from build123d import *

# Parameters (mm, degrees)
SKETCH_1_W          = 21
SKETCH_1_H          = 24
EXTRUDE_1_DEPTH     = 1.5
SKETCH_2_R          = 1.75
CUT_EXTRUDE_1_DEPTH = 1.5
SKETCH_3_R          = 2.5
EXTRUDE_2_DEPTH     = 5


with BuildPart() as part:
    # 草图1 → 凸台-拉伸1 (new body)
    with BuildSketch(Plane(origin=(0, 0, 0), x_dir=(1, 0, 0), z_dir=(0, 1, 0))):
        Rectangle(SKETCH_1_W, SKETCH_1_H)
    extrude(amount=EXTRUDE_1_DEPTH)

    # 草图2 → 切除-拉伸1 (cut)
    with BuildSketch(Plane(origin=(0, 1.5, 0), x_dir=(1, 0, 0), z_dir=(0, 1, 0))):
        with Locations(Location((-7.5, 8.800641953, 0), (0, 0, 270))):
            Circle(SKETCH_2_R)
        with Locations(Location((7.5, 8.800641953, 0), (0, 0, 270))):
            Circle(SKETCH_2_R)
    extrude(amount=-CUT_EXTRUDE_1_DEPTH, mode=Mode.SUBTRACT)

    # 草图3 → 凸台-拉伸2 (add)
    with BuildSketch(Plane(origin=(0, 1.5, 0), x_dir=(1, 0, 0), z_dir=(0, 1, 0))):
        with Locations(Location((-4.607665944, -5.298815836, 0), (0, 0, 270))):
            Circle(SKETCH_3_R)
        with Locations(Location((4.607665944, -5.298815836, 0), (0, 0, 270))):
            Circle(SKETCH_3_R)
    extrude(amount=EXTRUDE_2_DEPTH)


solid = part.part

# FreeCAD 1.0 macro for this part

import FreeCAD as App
import Part
import Sketcher

doc = App.newDocument("Part")
body = doc.addObject("PartDesign::Body", "Body")

# Sketch on XZ plane
sketch1 = body.newObject("Sketcher::SketchObject", "Sketch")
sketch1.AttachmentSupport = (doc.getObject("XZ_Plane"), [""])
sketch1.MapMode = "FlatFace"
sketch1.addGeometry(Part.LineSegment(App.Vector(-10, -12, 0), App.Vector(-10, 12, 0)), False)
sketch1.addGeometry(Part.LineSegment(App.Vector(-10, 12, 0), App.Vector(10, 12, 0)), False)
sketch1.addGeometry(Part.LineSegment(App.Vector(10, 12, 0), App.Vector(10, -12, 0)), False)
sketch1.addGeometry(Part.LineSegment(App.Vector(10, -12, 0), App.Vector(-10, -12, 0)), False)
sketch1.addConstraint(Sketcher.Constraint("Coincident", 0, 2, 1, 1))
sketch1.addConstraint(Sketcher.Constraint("Coincident", 1, 2, 2, 1))
sketch1.addConstraint(Sketcher.Constraint("Coincident", 2, 2, 3, 1))
sketch1.addConstraint(Sketcher.Constraint("Coincident", 3, 2, 0, 1))
sketch1.addConstraint(Sketcher.Constraint("Vertical", 0))
sketch1.addConstraint(Sketcher.Constraint("Horizontal", 1))
sketch1.addConstraint(Sketcher.Constraint("Vertical", 2))
sketch1.addConstraint(Sketcher.Constraint("Horizontal", 3))
sketch1.addConstraint(Sketcher.Constraint("Symmetric", 0, 2, 2, 2, -1, 1))
sketch1.addConstraint(Sketcher.Constraint("DistanceX", 1, 1, 1, 2, 21.0))
sketch1.addConstraint(Sketcher.Constraint("DistanceY", 0, 1, 0, 2, 24.0))
pad1 = body.newObject("PartDesign::Pad", "Pad")
pad1.Profile = sketch1
pad1.Length = 1.5
pad1.Reversed = True

# Sketch on XZ plane
sketch2 = body.newObject("Sketcher::SketchObject", "Sketch001")
sketch2.AttachmentSupport = (doc.getObject("XZ_Plane"), [""])
sketch2.MapMode = "FlatFace"
sketch2.AttachmentOffset = App.Placement(App.Vector(0, 0, -1.5), App.Rotation())
sketch2.addGeometry(Part.Circle(App.Vector(-7.5, -8.8, 0), App.Vector(0, 0, 1), 1.8), False)
sketch2.addGeometry(Part.Circle(App.Vector(7.5, -8.8, 0), App.Vector(0, 0, 1), 1.8), False)
sketch2.addConstraint(Sketcher.Constraint("Equal", 0, 1))
sketch2.addConstraint(Sketcher.Constraint("Symmetric", 0, 3, 1, 3, -2))
sketch2.addConstraint(Sketcher.Constraint("Diameter", 0, 3.5))
sketch2.addConstraint(Sketcher.Constraint("DistanceX", 0, 3, 1, 3, 15.0))
sketch2.addConstraint(Sketcher.Constraint("DistanceY", 0, 3, -1, 1, 8.800642))
pocket1 = body.newObject("PartDesign::Pocket", "Pocket")
pocket1.Profile = sketch2
pocket1.Length = 1.5
pocket1.Reversed = True

# Sketch on XZ plane
sketch3 = body.newObject("Sketcher::SketchObject", "Sketch002")
sketch3.AttachmentSupport = (doc.getObject("XZ_Plane"), [""])
sketch3.MapMode = "FlatFace"
sketch3.AttachmentOffset = App.Placement(App.Vector(0, 0, -1.5), App.Rotation())
sketch3.addGeometry(Part.Circle(App.Vector(-4.6, 5.3, 0), App.Vector(0, 0, 1), 2.5), False)
sketch3.addGeometry(Part.Circle(App.Vector(4.6, 5.3, 0), App.Vector(0, 0, 1), 2.5), False)
sketch3.addConstraint(Sketcher.Constraint("Equal", 0, 1))
sketch3.addConstraint(Sketcher.Constraint("Symmetric", 0, 3, 1, 3, -2))
sketch3.addConstraint(Sketcher.Constraint("Diameter", 0, 5.0))
sketch3.addConstraint(Sketcher.Constraint("DistanceX", 0, 3, 1, 3, 9.215332))
sketch3.addConstraint(Sketcher.Constraint("DistanceY", -1, 1, 0, 3, 5.298816))
pad2 = body.newObject("PartDesign::Pad", "Pad001")
pad2.Profile = sketch3
pad2.Length = 5
pad2.Reversed = True

doc.recompute()
